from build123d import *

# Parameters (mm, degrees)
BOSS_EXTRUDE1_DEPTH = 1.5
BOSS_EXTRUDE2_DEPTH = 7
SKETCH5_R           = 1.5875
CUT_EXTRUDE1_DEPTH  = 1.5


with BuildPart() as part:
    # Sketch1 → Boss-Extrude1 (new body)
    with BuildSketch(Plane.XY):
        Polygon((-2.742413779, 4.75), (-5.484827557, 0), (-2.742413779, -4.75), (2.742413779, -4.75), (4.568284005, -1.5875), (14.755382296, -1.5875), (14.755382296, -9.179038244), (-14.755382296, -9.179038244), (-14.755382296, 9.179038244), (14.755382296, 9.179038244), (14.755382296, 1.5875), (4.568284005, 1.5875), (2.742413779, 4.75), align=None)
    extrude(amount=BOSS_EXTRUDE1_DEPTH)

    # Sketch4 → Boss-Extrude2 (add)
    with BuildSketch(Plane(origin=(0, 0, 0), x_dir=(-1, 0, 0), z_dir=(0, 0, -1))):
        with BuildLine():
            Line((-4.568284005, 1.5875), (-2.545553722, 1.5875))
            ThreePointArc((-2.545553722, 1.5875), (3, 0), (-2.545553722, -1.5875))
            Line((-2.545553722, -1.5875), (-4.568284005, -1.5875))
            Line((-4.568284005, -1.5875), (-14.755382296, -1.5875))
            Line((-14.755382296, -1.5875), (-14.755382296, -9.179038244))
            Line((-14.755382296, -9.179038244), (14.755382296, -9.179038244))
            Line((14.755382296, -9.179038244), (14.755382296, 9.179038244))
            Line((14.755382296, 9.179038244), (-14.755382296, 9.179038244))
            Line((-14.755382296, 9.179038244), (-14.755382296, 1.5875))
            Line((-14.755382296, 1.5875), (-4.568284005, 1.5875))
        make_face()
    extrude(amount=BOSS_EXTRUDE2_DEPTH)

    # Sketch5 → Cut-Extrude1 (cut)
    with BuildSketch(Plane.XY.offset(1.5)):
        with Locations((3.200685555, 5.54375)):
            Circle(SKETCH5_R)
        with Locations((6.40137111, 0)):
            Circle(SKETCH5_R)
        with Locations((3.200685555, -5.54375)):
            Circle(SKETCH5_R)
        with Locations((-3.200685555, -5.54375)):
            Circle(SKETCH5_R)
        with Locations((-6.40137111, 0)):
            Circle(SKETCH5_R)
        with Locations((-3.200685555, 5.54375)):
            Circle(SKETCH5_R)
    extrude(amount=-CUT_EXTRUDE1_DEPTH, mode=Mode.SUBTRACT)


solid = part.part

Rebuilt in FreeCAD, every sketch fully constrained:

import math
import FreeCAD as App
import Part
import Sketcher

V = App.Vector
Q = App.Units.Quantity


def add_polygon(sketch, points):
    """Adds a closed chain of lines whose ends are joined by coincident constraints."""
    first, n = sketch.GeometryCount, len(points)
    for a, b in zip(points, points[1:] + points[:1]):
        sketch.addGeometry(Part.LineSegment(App.Vector(*a, 0), App.Vector(*b, 0)), False)
    for i in range(n):
        sketch.addConstraint(Sketcher.Constraint("Coincident", first + i, 2, first + (i + 1) % n, 1))

doc = App.newDocument("Part")
body = doc.addObject("PartDesign::Body", "Body")

sketch1 = doc.addObject("Sketcher::SketchObject", "Sketch")
body.addObject(sketch1)
sketch1.AttachmentSupport = (doc.XY_Plane, [""])
sketch1.MapMode = "FlatFace"
add_polygon(sketch1, [(-5.484828, 0), (-2.742414, 4.75), (2.742414, 4.75), (4.568284, 1.5875), (14.755382, 1.5875), (14.755382, 9.179038), (-14.755382, 9.179038), (-14.755382, -9.179038), (14.755382, -9.179038), (14.755382, -1.5875), (4.568284, -1.5875), (2.742414, -4.75), (-2.742414, -4.75)])
sketch1.addConstraint([
    Sketcher.Constraint("Horizontal", 1),
    Sketcher.Constraint("Horizontal", 3),
    Sketcher.Constraint("Vertical", 4),
    Sketcher.Constraint("Horizontal", 5),
    Sketcher.Constraint("Vertical", 6),
    Sketcher.Constraint("Horizontal", 7),
    Sketcher.Constraint("Vertical", 8),
    Sketcher.Constraint("Horizontal", 9),
    Sketcher.Constraint("Horizontal", 11),
    Sketcher.Constraint("Symmetric", 4, 2, 6, 2, -1, 1),
    Sketcher.Constraint("Symmetric", 0, 2, 10, 2, -1, 1),
    Sketcher.Constraint("Symmetric", 3, 2, 8, 2, -1),
    Sketcher.Constraint("PointOnObject", 12, 2, -1),
    Sketcher.Constraint("Parallel", 0, 10),
    Sketcher.Constraint("Parallel", 2, 12),
    Sketcher.Constraint("Vertical", 2, 2, 9, 2),
    Sketcher.Constraint("Vertical", 1, 2, 10, 2),
    Sketcher.Constraint("Angle", 0, Q("60 deg")),
    Sketcher.Constraint("DistanceY", 10, 2, 1, 2, 9.5),
    Sketcher.Constraint("DistanceX", 3, 1, 3, 2, 10.187098),
    Sketcher.Constraint("DistanceY", 8, 2, 3, 2, 3.175),
    Sketcher.Constraint("DistanceY", 4, 1, 4, 2, 7.591538),
    Sketcher.Constraint("DistanceX", 1, 1, 1, 2, 5.484828),
])
pad1 = doc.addObject("PartDesign::Pad", "Pad")
body.addObject(pad1)
pad1.Profile = sketch1
pad1.Length = 1.5

sketch2 = doc.addObject("Sketcher::SketchObject", "Sketch001")
body.addObject(sketch2)
sketch2.AttachmentSupport = (doc.XY_Plane, [""])
sketch2.MapMode = "FlatFace"
sketch2.addGeometry([
    Part.ArcOfCircle(Part.Circle(V(0, 0, 0), V(0, 0, 1), 3), math.radians(31.949167), math.radians(328.050833)),
    Part.LineSegment(V(2.545554, -1.5875, 0), V(14.755382, -1.5875, 0)),
    Part.LineSegment(V(14.755382, -1.5875, 0), V(14.755382, -9.179038, 0)),
    Part.LineSegment(V(14.755382, -9.179038, 0), V(-14.755382, -9.179038, 0)),
    Part.LineSegment(V(-14.755382, -9.179038, 0), V(-14.755382, 9.179038, 0)),
    Part.LineSegment(V(-14.755382, 9.179038, 0), V(14.755382, 9.179038, 0)),
    Part.LineSegment(V(14.755382, 9.179038, 0), V(14.755382, 1.5875, 0)),
    Part.LineSegment(V(14.755382, 1.5875, 0), V(2.545554, 1.5875, 0)),
], False)
sketch2.addConstraint([
    Sketcher.Constraint("Coincident", 0, 2, 1, 1),
    Sketcher.Constraint("Coincident", 1, 2, 2, 1),
    Sketcher.Constraint("Coincident", 2, 2, 3, 1),
    Sketcher.Constraint("Coincident", 3, 2, 4, 1),
    Sketcher.Constraint("Coincident", 4, 2, 5, 1),
    Sketcher.Constraint("Coincident", 5, 2, 6, 1),
    Sketcher.Constraint("Coincident", 6, 2, 7, 1),
    Sketcher.Constraint("Coincident", 7, 2, 0, 1),
    Sketcher.Constraint("Horizontal", 1),
    Sketcher.Constraint("Vertical", 2),
    Sketcher.Constraint("Horizontal", 3),
    Sketcher.Constraint("Vertical", 4),
    Sketcher.Constraint("Horizontal", 5),
    Sketcher.Constraint("Vertical", 6),
    Sketcher.Constraint("Horizontal", 7),
    Sketcher.Constraint("Coincident", 0, 3, -1, 1),
    Sketcher.Constraint("Symmetric", 2, 2, 4, 2, -1, 1),
    Sketcher.Constraint("Symmetric", 1, 2, 6, 2, -1),
    Sketcher.Constraint("Radius", 0, 3.0),
    Sketcher.Constraint("DistanceY", 1, 2, 6, 2, 3.175),
    Sketcher.Constraint("DistanceX", 1, 1, 1, 2, 12.209829),
    Sketcher.Constraint("DistanceY", 2, 2, 2, 1, 7.591538),
])
pad2 = doc.addObject("PartDesign::Pad", "Pad001")
body.addObject(pad2)
pad2.Profile = sketch2
pad2.Length = 7
pad2.Reversed = True

sketch3 = doc.addObject("Sketcher::SketchObject", "Sketch002")
body.addObject(sketch3)
sketch3.AttachmentSupport = (doc.XY_Plane, [""])
sketch3.MapMode = "FlatFace"
sketch3.AttachmentOffset = App.Placement(V(0, 0, 1.5), App.Rotation())
sketch3.addGeometry([
    Part.Circle(V(3.200686, 5.54375, 0), V(0, 0, 1), 1.5875),
    Part.Circle(V(6.401371, 0, 0), V(0, 0, 1), 1.5875),
    Part.Circle(V(3.200686, -5.54375, 0), V(0, 0, 1), 1.5875),
    Part.Circle(V(-3.200686, -5.54375, 0), V(0, 0, 1), 1.5875),
    Part.Circle(V(-6.401371, 0, 0), V(0, 0, 1), 1.5875),
    Part.Circle(V(-3.200686, 5.54375, 0), V(0, 0, 1), 1.5875),
], False)
sketch3.addConstraint([
    Sketcher.Constraint("Equal", 0, 1),
    Sketcher.Constraint("Equal", 1, 2),
    Sketcher.Constraint("Equal", 2, 3),
    Sketcher.Constraint("Equal", 3, 4),
    Sketcher.Constraint("Equal", 4, 5),
    Sketcher.Constraint("Symmetric", 0, 3, 3, 3, -1, 1),
    Sketcher.Constraint("Symmetric", 1, 3, 4, 3, -1, 1),
    Sketcher.Constraint("Symmetric", 2, 3, 5, 3, -1, 1),
    Sketcher.Constraint("Symmetric", 2, 3, 3, 3, -2),
    Sketcher.Constraint("PointOnObject", 1, 3, -1),
    Sketcher.Constraint("Diameter", 0, 3.175),
    Sketcher.Constraint("DistanceY", 2, 3, 0, 3, 11.0875),
    Sketcher.Constraint("DistanceX", -1, 1, 1, 3, 6.401371),
    Sketcher.Constraint("DistanceX", 3, 3, 2, 3, 6.401371),
])
pocket1 = doc.addObject("PartDesign::Pocket", "Pocket")
body.addObject(pocket1)
pocket1.Profile = sketch3
pocket1.Length = 1.5

doc.recompute()
